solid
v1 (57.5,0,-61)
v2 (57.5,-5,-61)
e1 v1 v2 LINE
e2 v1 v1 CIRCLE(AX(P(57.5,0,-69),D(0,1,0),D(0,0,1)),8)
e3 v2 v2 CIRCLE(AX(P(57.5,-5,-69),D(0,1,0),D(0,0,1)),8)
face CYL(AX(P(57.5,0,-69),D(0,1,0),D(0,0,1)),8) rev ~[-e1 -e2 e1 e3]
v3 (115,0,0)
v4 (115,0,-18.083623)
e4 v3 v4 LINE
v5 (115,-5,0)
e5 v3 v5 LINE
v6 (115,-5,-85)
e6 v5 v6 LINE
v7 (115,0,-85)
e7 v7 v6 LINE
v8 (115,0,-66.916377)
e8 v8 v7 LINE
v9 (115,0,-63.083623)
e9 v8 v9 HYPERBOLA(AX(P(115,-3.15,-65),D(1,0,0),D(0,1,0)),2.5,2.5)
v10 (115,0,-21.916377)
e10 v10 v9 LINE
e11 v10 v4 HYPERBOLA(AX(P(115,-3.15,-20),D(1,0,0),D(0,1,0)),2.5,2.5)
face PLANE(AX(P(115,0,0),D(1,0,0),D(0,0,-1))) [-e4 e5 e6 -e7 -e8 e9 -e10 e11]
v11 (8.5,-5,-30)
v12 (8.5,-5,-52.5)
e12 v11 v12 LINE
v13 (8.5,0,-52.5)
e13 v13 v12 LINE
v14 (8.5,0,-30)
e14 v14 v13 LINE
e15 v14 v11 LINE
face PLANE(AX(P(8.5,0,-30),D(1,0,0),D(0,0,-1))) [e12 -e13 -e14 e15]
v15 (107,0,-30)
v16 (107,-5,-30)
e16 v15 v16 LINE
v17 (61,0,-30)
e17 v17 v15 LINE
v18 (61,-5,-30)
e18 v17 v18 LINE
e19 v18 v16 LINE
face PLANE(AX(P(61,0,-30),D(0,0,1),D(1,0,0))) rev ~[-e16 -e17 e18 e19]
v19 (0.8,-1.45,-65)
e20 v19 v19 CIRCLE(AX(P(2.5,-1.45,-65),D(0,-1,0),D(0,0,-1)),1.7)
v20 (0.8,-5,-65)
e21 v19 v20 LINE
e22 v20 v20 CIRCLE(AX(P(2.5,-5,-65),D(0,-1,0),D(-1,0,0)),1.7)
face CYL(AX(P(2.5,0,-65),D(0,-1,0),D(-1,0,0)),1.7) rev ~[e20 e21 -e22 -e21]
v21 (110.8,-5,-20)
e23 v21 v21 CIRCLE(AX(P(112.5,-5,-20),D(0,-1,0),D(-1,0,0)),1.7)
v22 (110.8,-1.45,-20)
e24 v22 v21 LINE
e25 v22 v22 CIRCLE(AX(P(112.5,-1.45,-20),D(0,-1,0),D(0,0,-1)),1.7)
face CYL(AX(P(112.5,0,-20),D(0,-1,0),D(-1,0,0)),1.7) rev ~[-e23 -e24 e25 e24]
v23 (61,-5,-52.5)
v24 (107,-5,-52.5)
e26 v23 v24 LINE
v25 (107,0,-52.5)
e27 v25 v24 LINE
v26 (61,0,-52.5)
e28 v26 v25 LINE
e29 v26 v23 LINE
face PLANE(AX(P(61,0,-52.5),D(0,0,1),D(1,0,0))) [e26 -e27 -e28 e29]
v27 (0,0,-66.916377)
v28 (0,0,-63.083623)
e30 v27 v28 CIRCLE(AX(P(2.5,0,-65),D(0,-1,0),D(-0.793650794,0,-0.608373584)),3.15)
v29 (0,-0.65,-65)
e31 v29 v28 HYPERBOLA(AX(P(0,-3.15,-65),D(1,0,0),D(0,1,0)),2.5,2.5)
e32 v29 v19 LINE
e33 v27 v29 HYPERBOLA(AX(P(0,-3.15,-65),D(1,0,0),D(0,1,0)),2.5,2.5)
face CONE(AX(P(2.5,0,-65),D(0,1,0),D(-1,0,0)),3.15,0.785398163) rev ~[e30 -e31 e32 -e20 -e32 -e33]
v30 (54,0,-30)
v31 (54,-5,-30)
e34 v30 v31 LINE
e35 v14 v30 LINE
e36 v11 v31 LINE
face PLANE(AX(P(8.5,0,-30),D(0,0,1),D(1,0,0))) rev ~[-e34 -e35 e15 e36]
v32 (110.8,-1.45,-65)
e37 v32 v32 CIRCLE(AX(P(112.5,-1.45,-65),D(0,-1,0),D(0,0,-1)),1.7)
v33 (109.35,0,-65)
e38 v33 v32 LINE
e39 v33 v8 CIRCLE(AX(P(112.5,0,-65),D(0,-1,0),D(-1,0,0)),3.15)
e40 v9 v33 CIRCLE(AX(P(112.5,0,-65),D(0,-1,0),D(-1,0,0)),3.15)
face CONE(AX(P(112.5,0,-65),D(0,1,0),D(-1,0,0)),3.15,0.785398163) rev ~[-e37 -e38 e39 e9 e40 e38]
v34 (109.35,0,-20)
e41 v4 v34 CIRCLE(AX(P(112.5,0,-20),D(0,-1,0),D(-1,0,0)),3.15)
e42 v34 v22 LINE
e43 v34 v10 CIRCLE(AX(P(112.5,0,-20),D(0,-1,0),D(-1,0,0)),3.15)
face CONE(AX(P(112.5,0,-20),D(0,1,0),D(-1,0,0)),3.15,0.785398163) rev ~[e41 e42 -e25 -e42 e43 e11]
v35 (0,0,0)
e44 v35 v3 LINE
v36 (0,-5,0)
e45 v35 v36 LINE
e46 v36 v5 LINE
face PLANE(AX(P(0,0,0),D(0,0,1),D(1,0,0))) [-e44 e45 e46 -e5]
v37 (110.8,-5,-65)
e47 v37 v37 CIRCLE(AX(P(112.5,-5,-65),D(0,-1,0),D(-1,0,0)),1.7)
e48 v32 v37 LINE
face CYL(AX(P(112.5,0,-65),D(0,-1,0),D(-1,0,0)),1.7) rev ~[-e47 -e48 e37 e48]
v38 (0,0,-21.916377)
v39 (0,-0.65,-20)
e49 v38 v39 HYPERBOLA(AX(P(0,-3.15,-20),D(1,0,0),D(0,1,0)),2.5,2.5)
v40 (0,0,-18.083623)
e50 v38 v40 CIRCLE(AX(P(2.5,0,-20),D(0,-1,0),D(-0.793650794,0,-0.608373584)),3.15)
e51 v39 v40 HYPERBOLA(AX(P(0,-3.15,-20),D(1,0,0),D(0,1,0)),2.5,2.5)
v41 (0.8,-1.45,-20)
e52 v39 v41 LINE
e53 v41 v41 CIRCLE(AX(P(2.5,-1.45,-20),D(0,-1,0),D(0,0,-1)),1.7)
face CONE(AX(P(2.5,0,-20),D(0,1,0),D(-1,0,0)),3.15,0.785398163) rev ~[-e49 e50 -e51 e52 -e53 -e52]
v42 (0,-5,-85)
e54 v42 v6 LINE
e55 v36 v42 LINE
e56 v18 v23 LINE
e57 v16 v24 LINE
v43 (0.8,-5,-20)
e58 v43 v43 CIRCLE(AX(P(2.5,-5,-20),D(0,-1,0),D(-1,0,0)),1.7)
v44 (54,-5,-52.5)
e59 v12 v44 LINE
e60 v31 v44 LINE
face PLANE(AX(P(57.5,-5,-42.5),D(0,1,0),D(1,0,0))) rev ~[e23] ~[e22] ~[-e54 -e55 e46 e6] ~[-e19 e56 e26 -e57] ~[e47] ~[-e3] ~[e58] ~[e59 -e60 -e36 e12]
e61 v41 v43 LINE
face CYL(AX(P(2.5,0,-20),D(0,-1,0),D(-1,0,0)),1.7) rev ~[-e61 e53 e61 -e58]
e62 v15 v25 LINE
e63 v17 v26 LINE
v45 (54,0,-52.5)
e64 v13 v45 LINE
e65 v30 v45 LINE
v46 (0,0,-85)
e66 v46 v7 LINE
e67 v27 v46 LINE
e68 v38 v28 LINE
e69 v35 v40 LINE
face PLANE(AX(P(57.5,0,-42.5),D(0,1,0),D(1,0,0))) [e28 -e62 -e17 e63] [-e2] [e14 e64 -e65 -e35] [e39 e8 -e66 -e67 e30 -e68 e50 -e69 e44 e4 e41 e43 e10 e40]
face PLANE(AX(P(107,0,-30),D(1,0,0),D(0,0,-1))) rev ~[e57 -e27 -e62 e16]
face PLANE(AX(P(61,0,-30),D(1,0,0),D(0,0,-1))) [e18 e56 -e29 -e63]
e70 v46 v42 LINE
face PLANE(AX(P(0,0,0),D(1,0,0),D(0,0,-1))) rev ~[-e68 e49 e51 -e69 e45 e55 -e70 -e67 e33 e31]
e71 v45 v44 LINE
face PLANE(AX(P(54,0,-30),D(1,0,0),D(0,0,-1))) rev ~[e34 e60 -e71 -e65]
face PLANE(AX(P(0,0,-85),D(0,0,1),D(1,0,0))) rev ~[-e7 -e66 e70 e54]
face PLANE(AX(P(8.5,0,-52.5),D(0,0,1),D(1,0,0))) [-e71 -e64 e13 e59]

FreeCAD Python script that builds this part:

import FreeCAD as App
import Part
import Sketcher


def add_polygon(sketch, points):
    """Adds a closed chain of lines whose ends are joined by coincident constraints."""
    first, n = sketch.GeometryCount, len(points)
    for a, b in zip(points, points[1:] + points[:1]):
        sketch.addGeometry(Part.LineSegment(App.Vector(*a, 0), App.Vector(*b, 0)), False)
    for i in range(n):
        sketch.addConstraint(Sketcher.Constraint("Coincident", first + i, 2, first + (i + 1) % n, 1))

doc = App.newDocument("Part")
body = doc.addObject("PartDesign::Body", "Body")

# Sketch on XZ plane
sketch1 = body.newObject("Sketcher::SketchObject", "Sketch")
sketch1.AttachmentSupport = (doc.getObject("XZ_Plane"), [""])
sketch1.MapMode = "FlatFace"
add_polygon(sketch1, [(0, -85), (0, 0), (115, 0), (115, -85)])  # lines 0-3
add_polygon(sketch1, [(54, -30), (8, -30), (8, -52), (54, -52)])  # lines 4-7
add_polygon(sketch1, [(107, -30), (61, -30), (61, -52), (107, -52)])  # lines 8-11
sketch1.addGeometry(Part.Circle(App.Vector(58, -69, 0), App.Vector(0, 0, 1), 8), False)  # 12
sketch1.addConstraint([
    Sketcher.Constraint("Vertical", 0),
    Sketcher.Constraint("Horizontal", 1),
    Sketcher.Constraint("Vertical", 2),
    Sketcher.Constraint("Horizontal", 3),
    Sketcher.Constraint("Horizontal", 4),
    Sketcher.Constraint("Vertical", 5),
    Sketcher.Constraint("Horizontal", 6),
    Sketcher.Constraint("Vertical", 7),
    Sketcher.Constraint("Horizontal", 8),
    Sketcher.Constraint("Vertical", 9),
    Sketcher.Constraint("Horizontal", 10),
    Sketcher.Constraint("Vertical", 11),
    Sketcher.Constraint("Coincident", 0, 2, -1, 1),
    Sketcher.Constraint("Horizontal", 7, 2, 8, 2),
    Sketcher.Constraint("Horizontal", 6, 2, 9, 2),
    Sketcher.Constraint("Diameter", 12, 16.0),
    Sketcher.Constraint("DistanceX", 1, 1, 1, 2, 115.0),
    Sketcher.Constraint("DistanceX", 8, 2, 8, 1, 46.0),
    Sketcher.Constraint("DistanceY", 0, 1, 0, 2, 85.0),
    Sketcher.Constraint("DistanceX", 4, 2, 4, 1, 45.5),
    Sketcher.Constraint("DistanceY", 5, 2, 5, 1, 22.5),
    Sketcher.Constraint("DistanceY", 12, 3, -1, 1, 69.0),
    Sketcher.Constraint("DistanceY", 4, 2, -1, 1, 30.0),
    Sketcher.Constraint("DistanceX", -1, 1, 6, 2, 54.0),
    Sketcher.Constraint("DistanceX", -1, 1, 8, 2, 61.0),
    Sketcher.Constraint("DistanceX", 4, 2, 12, 3, 49.0),
])
pad1 = body.newObject("PartDesign::Pad", "Pad")
pad1.Profile = sketch1
pad1.Length = 5

# Sketch on XZ plane
sketch2 = body.newObject("Sketcher::SketchObject", "Sketch001")
sketch2.AttachmentSupport = (doc.getObject("XZ_Plane"), [""])
sketch2.MapMode = "FlatFace"
sketch2.addGeometry([
    Part.Circle(App.Vector(2.5, -65, 0), App.Vector(0, 0, 1), 1.7),
    Part.Circle(App.Vector(2.5, -20, 0), App.Vector(0, 0, 1), 1.7),
    Part.Circle(App.Vector(112.5, -65, 0), App.Vector(0, 0, 1), 1.7),
    Part.Circle(App.Vector(112.5, -20, 0), App.Vector(0, 0, 1), 1.7),
], False)
sketch2.addConstraint([
    Sketcher.Constraint("Equal", 0, 1),
    Sketcher.Constraint("Equal", 1, 2),
    Sketcher.Constraint("Equal", 2, 3),
    Sketcher.Constraint("Horizontal", 0, 3, 2, 3),
    Sketcher.Constraint("Horizontal", 1, 3, 3, 3),
    Sketcher.Constraint("Vertical", 0, 3, 1, 3),
    Sketcher.Constraint("Vertical", 2, 3, 3, 3),
    Sketcher.Constraint("Diameter", 0, 3.4),
    Sketcher.Constraint("DistanceY", 0, 3, -1, 1, 65.0),
    Sketcher.Constraint("DistanceY", 1, 3, -1, 1, 20.0),
    Sketcher.Constraint("DistanceX", 0, 3, 2, 3, 110.0),
    Sketcher.Constraint("DistanceX", -1, 1, 0, 3, 2.5),
])
doc.recompute()
hole = body.newObject("PartDesign::Hole", "Hole")
hole.Profile = sketch2
hole.ThreadType = "None"
hole.Diameter = 3.4
hole.DepthType = "ThroughAll"
hole.HoleCutType = "Countersink"
hole.HoleCutDiameter = 6.3
hole.HoleCutCountersinkAngle = 90
hole.Reversed = True

doc.recompute()
